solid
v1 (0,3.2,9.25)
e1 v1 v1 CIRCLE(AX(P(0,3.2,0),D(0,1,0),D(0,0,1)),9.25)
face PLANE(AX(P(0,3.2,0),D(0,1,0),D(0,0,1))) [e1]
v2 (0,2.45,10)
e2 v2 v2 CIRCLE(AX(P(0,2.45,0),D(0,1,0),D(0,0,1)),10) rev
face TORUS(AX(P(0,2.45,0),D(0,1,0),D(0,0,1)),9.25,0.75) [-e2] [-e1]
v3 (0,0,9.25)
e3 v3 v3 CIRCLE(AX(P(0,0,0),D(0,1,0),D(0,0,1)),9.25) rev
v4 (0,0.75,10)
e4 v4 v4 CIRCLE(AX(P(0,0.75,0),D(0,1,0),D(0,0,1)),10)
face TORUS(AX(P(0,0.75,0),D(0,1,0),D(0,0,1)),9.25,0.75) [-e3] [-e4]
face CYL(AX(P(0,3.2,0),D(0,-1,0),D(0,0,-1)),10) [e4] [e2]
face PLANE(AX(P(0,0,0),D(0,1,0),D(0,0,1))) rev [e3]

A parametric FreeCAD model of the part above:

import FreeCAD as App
import Part
import Sketcher
Q = App.Units.Quantity


def edges_at(feature, points):
    """Names of the edges that pass closest to the given points."""
    edges = feature.Shape.Edges
    near = lambda p: min(range(len(edges)), key=lambda i: edges[i].distToShape(Part.Vertex(*p))[0])
    return sorted({f"Edge{near(p) + 1}" for p in points})

doc = App.newDocument("Part")
body = doc.addObject("PartDesign::Body", "Body")

sketch1 = body.newObject("Sketcher::SketchObject", "Sketch")
sketch1.AttachmentSupport = (doc.getObject("XZ_Plane"), [""])
sketch1.MapMode = "FlatFace"
sketch1.addGeometry(Part.Circle(App.Vector(0, 0, 0), App.Vector(0, 0, 1), 10), False)
sketch1.addConstraint([
    Sketcher.Constraint("Coincident", 0, 3, -1, 1),
    Sketcher.Constraint("Diameter", 0, Q("20 mm")),
])
pad1 = body.newObject("PartDesign::Pad", "Pad")
pad1.Profile = sketch1
pad1.Length = 3.2
pad1.Reversed = True
doc.recompute()

fillet = body.newObject("PartDesign::Fillet", "Fillet")
fillet.Base = (pad1, edges_at(pad1, [(-10, 0, 0), (-10, 3.2, 0)]))
fillet.Radius = 0.75

doc.recompute()
